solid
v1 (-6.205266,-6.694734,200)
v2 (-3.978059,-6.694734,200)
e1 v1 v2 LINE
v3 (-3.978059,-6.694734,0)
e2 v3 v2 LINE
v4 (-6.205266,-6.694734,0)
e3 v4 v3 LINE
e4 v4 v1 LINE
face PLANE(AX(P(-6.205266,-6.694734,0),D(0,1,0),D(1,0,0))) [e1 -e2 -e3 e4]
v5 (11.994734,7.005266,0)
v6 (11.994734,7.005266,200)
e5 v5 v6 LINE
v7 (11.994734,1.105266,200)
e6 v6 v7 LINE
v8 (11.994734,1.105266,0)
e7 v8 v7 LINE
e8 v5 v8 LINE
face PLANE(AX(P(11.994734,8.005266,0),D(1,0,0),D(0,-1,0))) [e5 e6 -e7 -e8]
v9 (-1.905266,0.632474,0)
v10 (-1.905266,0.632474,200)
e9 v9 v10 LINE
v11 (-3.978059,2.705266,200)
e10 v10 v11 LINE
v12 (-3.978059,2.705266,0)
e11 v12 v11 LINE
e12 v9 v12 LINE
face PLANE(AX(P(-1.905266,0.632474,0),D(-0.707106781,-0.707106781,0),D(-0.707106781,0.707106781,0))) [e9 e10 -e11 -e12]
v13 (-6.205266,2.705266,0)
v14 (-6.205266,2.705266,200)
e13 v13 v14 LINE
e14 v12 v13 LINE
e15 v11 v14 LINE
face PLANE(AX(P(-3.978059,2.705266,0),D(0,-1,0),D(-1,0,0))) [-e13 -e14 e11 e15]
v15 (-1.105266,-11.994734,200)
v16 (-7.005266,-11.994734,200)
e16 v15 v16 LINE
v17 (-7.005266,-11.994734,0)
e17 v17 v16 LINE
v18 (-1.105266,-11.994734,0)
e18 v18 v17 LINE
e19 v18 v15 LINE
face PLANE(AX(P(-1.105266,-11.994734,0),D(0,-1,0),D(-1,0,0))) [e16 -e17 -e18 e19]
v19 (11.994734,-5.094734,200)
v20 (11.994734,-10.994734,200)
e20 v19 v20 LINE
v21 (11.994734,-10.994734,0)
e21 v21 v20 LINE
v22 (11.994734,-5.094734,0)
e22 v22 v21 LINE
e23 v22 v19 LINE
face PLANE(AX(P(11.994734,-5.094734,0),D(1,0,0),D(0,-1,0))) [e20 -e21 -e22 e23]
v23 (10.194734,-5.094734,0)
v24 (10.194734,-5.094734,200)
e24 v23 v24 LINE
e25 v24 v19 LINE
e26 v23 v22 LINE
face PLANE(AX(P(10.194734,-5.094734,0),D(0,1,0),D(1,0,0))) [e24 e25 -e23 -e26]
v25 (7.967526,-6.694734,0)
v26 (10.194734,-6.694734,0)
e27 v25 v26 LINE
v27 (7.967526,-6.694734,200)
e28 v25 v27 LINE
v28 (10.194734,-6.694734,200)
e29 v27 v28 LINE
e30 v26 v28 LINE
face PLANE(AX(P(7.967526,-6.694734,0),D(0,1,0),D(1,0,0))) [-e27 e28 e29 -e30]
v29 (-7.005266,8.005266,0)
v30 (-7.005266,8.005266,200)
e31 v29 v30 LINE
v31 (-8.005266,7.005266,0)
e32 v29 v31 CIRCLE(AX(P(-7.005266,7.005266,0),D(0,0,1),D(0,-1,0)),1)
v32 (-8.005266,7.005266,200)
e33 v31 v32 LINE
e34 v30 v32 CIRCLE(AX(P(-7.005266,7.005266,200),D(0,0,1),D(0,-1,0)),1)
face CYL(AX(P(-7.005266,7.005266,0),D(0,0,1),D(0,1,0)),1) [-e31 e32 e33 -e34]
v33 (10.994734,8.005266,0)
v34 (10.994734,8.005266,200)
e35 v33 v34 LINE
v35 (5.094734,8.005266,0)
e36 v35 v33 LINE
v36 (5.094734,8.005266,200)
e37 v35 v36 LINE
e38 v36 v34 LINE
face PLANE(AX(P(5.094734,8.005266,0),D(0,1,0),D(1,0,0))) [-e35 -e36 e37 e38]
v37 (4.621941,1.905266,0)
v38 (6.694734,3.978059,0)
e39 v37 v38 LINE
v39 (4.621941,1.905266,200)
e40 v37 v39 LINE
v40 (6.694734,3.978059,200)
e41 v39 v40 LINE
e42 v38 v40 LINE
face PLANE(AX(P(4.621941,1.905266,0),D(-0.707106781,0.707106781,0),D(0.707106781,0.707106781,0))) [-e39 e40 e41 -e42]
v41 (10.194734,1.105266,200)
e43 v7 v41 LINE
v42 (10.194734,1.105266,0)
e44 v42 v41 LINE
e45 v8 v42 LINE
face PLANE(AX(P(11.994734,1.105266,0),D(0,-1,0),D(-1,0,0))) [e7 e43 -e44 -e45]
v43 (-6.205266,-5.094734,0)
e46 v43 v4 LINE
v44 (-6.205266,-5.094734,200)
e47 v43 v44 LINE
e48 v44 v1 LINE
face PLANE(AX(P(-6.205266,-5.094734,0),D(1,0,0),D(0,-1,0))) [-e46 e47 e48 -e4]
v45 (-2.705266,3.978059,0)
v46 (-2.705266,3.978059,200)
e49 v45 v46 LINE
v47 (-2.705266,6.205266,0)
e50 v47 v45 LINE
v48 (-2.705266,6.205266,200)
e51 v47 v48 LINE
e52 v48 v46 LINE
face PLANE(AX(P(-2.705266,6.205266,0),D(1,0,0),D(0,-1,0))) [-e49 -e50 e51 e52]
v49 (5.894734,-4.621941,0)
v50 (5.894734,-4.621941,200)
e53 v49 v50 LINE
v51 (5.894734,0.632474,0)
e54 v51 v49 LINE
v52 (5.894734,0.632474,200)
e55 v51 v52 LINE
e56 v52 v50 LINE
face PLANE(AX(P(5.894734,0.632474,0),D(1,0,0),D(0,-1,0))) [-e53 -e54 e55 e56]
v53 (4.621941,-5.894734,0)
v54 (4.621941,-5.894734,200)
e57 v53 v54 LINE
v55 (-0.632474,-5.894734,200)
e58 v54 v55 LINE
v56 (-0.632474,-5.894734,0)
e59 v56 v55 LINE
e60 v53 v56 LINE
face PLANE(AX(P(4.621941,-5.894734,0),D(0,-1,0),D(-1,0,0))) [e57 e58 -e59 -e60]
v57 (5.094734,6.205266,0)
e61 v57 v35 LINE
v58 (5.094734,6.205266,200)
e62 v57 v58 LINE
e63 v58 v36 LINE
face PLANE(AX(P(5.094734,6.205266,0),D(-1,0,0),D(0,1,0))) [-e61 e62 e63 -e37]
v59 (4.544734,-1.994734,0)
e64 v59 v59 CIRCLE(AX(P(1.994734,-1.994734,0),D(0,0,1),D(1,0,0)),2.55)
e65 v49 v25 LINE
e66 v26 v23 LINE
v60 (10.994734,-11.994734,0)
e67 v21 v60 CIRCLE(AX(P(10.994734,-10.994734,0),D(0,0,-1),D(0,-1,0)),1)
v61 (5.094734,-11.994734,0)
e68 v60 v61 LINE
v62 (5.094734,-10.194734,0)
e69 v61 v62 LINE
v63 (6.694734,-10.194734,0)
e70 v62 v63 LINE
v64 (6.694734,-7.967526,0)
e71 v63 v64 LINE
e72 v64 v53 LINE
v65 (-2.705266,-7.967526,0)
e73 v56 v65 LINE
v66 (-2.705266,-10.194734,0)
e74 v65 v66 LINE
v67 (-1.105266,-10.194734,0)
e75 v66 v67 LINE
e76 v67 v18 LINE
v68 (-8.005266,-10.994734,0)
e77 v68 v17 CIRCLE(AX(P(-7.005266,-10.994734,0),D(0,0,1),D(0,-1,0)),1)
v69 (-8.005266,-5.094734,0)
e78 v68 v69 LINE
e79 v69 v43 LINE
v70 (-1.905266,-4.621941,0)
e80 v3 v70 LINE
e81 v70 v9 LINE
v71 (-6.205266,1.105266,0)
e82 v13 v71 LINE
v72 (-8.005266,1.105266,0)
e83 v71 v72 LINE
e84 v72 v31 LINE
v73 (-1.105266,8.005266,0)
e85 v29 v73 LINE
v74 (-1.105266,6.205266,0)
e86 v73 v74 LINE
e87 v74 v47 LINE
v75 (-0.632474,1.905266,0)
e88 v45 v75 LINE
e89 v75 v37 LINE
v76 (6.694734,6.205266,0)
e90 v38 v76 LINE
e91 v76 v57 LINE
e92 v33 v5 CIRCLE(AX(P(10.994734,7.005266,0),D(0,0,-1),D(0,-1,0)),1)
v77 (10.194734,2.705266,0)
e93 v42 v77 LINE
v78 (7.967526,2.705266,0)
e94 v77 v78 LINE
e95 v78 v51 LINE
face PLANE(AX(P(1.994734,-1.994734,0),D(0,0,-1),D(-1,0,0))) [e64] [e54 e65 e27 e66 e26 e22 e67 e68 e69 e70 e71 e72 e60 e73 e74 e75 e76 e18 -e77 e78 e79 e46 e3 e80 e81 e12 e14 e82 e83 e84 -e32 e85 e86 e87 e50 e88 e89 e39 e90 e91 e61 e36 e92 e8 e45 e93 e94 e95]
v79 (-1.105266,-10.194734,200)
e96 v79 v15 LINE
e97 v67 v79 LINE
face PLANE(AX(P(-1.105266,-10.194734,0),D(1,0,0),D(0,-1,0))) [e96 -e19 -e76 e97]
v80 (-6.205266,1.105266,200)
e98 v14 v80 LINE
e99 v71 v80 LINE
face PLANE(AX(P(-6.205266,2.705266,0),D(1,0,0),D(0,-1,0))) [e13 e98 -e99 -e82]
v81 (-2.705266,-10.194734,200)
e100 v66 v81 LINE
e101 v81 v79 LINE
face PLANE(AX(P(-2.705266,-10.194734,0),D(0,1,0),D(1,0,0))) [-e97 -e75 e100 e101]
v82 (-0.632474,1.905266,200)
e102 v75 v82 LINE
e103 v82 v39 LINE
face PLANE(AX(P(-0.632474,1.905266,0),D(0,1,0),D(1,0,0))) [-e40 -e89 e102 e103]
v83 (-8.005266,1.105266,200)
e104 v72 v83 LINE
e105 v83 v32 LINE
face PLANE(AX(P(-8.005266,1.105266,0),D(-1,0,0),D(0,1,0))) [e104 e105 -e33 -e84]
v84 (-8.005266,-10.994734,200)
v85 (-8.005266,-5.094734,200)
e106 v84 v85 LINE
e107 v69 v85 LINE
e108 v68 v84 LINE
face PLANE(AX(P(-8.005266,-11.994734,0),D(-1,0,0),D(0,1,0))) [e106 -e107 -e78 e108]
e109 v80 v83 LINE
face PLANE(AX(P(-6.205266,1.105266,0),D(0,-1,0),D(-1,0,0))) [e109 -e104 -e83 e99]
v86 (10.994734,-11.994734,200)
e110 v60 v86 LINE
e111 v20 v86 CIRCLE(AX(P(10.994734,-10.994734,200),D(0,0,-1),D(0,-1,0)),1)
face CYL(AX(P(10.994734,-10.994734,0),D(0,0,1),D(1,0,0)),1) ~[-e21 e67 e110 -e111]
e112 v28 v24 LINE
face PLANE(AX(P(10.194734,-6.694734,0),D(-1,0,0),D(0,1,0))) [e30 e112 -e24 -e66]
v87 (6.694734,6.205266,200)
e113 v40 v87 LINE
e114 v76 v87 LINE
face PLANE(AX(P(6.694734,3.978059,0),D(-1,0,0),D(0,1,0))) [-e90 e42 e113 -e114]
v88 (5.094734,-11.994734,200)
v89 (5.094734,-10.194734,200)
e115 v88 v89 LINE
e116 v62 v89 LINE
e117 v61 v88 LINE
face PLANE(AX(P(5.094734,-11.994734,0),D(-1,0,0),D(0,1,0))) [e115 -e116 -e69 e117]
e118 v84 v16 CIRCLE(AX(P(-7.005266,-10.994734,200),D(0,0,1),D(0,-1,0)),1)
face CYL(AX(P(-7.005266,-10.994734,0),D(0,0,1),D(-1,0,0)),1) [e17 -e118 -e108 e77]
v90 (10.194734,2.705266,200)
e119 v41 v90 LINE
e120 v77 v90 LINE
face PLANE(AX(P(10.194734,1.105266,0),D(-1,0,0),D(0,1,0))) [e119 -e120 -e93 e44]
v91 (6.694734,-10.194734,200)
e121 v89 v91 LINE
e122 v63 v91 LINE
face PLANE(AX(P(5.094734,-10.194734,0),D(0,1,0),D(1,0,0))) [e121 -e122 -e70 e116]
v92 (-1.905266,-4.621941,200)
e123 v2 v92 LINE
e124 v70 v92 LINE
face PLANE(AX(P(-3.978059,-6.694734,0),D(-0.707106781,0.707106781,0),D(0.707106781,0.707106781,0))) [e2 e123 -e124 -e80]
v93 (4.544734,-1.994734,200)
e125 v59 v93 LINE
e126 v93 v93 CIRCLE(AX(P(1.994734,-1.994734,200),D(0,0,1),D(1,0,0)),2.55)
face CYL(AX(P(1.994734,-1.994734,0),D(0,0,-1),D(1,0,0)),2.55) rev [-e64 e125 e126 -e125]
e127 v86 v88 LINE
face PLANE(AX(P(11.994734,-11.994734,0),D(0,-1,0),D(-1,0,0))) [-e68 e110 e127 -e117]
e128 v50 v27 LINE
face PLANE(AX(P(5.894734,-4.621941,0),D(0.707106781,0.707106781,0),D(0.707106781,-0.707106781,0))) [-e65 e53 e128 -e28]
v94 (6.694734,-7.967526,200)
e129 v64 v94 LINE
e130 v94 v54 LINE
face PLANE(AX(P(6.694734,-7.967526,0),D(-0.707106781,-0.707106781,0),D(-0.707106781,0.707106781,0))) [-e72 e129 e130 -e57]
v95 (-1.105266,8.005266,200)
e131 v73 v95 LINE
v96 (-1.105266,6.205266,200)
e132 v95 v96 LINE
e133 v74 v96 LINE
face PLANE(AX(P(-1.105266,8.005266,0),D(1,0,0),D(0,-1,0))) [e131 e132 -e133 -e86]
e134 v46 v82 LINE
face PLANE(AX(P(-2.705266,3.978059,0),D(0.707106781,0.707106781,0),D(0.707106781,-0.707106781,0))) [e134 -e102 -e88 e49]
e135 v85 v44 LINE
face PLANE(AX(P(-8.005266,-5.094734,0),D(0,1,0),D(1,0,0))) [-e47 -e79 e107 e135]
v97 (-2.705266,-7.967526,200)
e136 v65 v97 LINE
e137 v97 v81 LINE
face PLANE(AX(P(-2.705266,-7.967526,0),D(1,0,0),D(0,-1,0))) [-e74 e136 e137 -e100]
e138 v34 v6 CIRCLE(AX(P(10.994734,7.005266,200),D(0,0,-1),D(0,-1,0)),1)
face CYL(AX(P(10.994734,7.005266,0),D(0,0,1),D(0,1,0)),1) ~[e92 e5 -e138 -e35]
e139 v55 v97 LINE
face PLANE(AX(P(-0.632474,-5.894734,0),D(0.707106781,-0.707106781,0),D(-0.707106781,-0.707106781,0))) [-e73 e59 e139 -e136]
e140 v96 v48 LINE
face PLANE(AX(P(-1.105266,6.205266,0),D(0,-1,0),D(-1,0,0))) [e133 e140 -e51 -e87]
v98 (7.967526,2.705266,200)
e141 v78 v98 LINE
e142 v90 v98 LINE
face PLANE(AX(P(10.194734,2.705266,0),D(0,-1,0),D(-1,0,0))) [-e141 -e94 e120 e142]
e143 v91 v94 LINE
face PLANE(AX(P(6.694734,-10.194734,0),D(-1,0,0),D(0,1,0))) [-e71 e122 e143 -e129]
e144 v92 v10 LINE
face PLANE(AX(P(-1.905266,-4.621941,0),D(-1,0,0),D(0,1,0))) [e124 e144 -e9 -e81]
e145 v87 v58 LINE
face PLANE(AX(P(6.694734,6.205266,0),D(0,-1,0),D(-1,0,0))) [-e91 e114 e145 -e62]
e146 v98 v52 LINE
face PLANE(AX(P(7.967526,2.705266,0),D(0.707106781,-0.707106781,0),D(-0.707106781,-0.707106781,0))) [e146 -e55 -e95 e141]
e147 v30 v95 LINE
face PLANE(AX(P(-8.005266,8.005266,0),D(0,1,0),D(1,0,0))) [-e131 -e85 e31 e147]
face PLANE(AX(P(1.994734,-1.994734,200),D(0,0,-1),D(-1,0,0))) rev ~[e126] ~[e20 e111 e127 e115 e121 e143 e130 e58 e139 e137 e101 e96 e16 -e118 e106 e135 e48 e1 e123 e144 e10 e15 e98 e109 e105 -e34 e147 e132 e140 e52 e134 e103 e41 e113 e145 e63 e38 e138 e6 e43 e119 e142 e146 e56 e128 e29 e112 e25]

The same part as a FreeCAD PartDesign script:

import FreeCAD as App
import Part
import Sketcher

V = App.Vector
Q = App.Units.Quantity


def edges_at(feature, points):
    """Names of the edges that pass closest to the given points."""
    edges = feature.Shape.Edges
    near = lambda p: min(range(len(edges)), key=lambda i: edges[i].distToShape(Part.Vertex(*p))[0])
    return sorted({f"Edge{near(p) + 1}" for p in points})

doc = App.newDocument("Part")
body = doc.addObject("PartDesign::Body", "Body")

sketch1 = body.newObject("Sketcher::SketchObject", "Sketch")
sketch1.AttachmentSupport = (doc.getObject("XY_Plane"), [""])
sketch1.MapMode = "FlatFace"
sketch1.addGeometry([
    Part.LineSegment(V(6.694734, 3.978059, 0), V(4.621941, 1.905266, 0)),
    Part.LineSegment(V(4.621941, 1.905266, 0), V(-0.632474, 1.905266, 0)),
    Part.LineSegment(V(-0.632474, 1.905266, 0), V(-2.705266, 3.978059, 0)),
    Part.LineSegment(V(-2.705266, 3.978059, 0), V(-2.705266, 6.205266, 0)),
    Part.LineSegment(V(-2.705266, 6.205266, 0), V(-1.105266, 6.205266, 0)),
    Part.LineSegment(V(-1.105266, 6.205266, 0), V(-1.105266, 8.005266, 0)),
    Part.LineSegment(V(-1.105266, 8.005266, 0), V(-8.005266, 8.005266, 0)),
    Part.LineSegment(V(-8.005266, 8.005266, 0), V(-8.005266, 1.105266, 0)),
    Part.LineSegment(V(-8.005266, 1.105266, 0), V(-6.205266, 1.105266, 0)),
    Part.LineSegment(V(-6.205266, 1.105266, 0), V(-6.205266, 2.705266, 0)),
    Part.LineSegment(V(-6.205266, 2.705266, 0), V(-3.978059, 2.705266, 0)),
    Part.LineSegment(V(-3.978059, 2.705266, 0), V(-1.905266, 0.632474, 0)),
    Part.LineSegment(V(-1.905266, 0.632474, 0), V(-1.905266, -4.621941, 0)),
    Part.LineSegment(V(-1.905266, -4.621941, 0), V(-3.978059, -6.694734, 0)),
    Part.LineSegment(V(-3.978059, -6.694734, 0), V(-6.205266, -6.694734, 0)),
    Part.LineSegment(V(-6.205266, -6.694734, 0), V(-6.205266, -5.094734, 0)),
    Part.LineSegment(V(-6.205266, -5.094734, 0), V(-8.005266, -5.094734, 0)),
    Part.LineSegment(V(-8.005266, -5.094734, 0), V(-8.005266, -11.994734, 0)),
    Part.LineSegment(V(-8.005266, -11.994734, 0), V(-1.105266, -11.994734, 0)),
    Part.LineSegment(V(-1.105266, -11.994734, 0), V(-1.105266, -10.194734, 0)),
    Part.LineSegment(V(-1.105266, -10.194734, 0), V(-2.705266, -10.194734, 0)),
    Part.LineSegment(V(-2.705266, -10.194734, 0), V(-2.705266, -7.967526, 0)),
    Part.LineSegment(V(-2.705266, -7.967526, 0), V(-0.632474, -5.894734, 0)),
    Part.LineSegment(V(-0.632474, -5.894734, 0), V(4.621941, -5.894734, 0)),
    Part.LineSegment(V(4.621941, -5.894734, 0), V(6.694734, -7.967526, 0)),
    Part.LineSegment(V(6.694734, -7.967526, 0), V(6.694734, -10.194734, 0)),
    Part.LineSegment(V(6.694734, -10.194734, 0), V(5.094734, -10.194734, 0)),
    Part.LineSegment(V(5.094734, -10.194734, 0), V(5.094734, -11.994734, 0)),
    Part.LineSegment(V(5.094734, -11.994734, 0), V(11.994734, -11.994734, 0)),
    Part.LineSegment(V(11.994734, -11.994734, 0), V(11.994734, -5.094734, 0)),
    Part.LineSegment(V(11.994734, -5.094734, 0), V(10.194734, -5.094734, 0)),
    Part.LineSegment(V(10.194734, -5.094734, 0), V(10.194734, -6.694734, 0)),
    Part.LineSegment(V(10.194734, -6.694734, 0), V(7.967526, -6.694734, 0)),
    Part.LineSegment(V(7.967526, -6.694734, 0), V(5.894734, -4.621941, 0)),
    Part.LineSegment(V(5.894734, -4.621941, 0), V(5.894734, 0.632474, 0)),
    Part.LineSegment(V(5.894734, 0.632474, 0), V(7.967526, 2.705266, 0)),
    Part.LineSegment(V(7.967526, 2.705266, 0), V(10.194734, 2.705266, 0)),
    Part.LineSegment(V(10.194734, 2.705266, 0), V(10.194734, 1.105266, 0)),
    Part.LineSegment(V(10.194734, 1.105266, 0), V(11.994734, 1.105266, 0)),
    Part.LineSegment(V(11.994734, 1.105266, 0), V(11.994734, 8.005266, 0)),
    Part.LineSegment(V(11.994734, 8.005266, 0), V(5.094734, 8.005266, 0)),
    Part.LineSegment(V(5.094734, 8.005266, 0), V(5.094734, 6.205266, 0)),
    Part.LineSegment(V(5.094734, 6.205266, 0), V(6.694734, 6.205266, 0)),
    Part.LineSegment(V(6.694734, 6.205266, 0), V(6.694734, 3.978059, 0)),
    Part.Circle(V(1.994734, -1.994734, 0), V(0, 0, 1), 2.55),
], False)
sketch1.addConstraint([
    Sketcher.Constraint("Coincident", 0, 2, 1, 1),
    Sketcher.Constraint("Coincident", 1, 2, 2, 1),
    Sketcher.Constraint("Coincident", 2, 2, 3, 1),
    Sketcher.Constraint("Coincident", 3, 2, 4, 1),
    Sketcher.Constraint("Coincident", 4, 2, 5, 1),
    Sketcher.Constraint("Coincident", 5, 2, 6, 1),
    Sketcher.Constraint("Coincident", 6, 2, 7, 1),
    Sketcher.Constraint("Coincident", 7, 2, 8, 1),
    Sketcher.Constraint("Coincident", 8, 2, 9, 1),
    Sketcher.Constraint("Coincident", 9, 2, 10, 1),
    Sketcher.Constraint("Coincident", 10, 2, 11, 1),
    Sketcher.Constraint("Coincident", 11, 2, 12, 1),
    Sketcher.Constraint("Coincident", 12, 2, 13, 1),
    Sketcher.Constraint("Coincident", 13, 2, 14, 1),
    Sketcher.Constraint("Coincident", 14, 2, 15, 1),
    Sketcher.Constraint("Coincident", 15, 2, 16, 1),
    Sketcher.Constraint("Coincident", 16, 2, 17, 1),
    Sketcher.Constraint("Coincident", 17, 2, 18, 1),
    Sketcher.Constraint("Coincident", 18, 2, 19, 1),
    Sketcher.Constraint("Coincident", 19, 2, 20, 1),
    Sketcher.Constraint("Coincident", 20, 2, 21, 1),
    Sketcher.Constraint("Coincident", 21, 2, 22, 1),
    Sketcher.Constraint("Coincident", 22, 2, 23, 1),
    Sketcher.Constraint("Coincident", 23, 2, 24, 1),
    Sketcher.Constraint("Coincident", 24, 2, 25, 1),
    Sketcher.Constraint("Coincident", 25, 2, 26, 1),
    Sketcher.Constraint("Coincident", 26, 2, 27, 1),
    Sketcher.Constraint("Coincident", 27, 2, 28, 1),
    Sketcher.Constraint("Coincident", 28, 2, 29, 1),
    Sketcher.Constraint("Coincident", 29, 2, 30, 1),
    Sketcher.Constraint("Coincident", 30, 2, 31, 1),
    Sketcher.Constraint("Coincident", 31, 2, 32, 1),
    Sketcher.Constraint("Coincident", 32, 2, 33, 1),
    Sketcher.Constraint("Coincident", 33, 2, 34, 1),
    Sketcher.Constraint("Coincident", 34, 2, 35, 1),
    Sketcher.Constraint("Coincident", 35, 2, 36, 1),
    Sketcher.Constraint("Coincident", 36, 2, 37, 1),
    Sketcher.Constraint("Coincident", 37, 2, 38, 1),
    Sketcher.Constraint("Coincident", 38, 2, 39, 1),
    Sketcher.Constraint("Coincident", 39, 2, 40, 1),
    Sketcher.Constraint("Coincident", 40, 2, 41, 1),
    Sketcher.Constraint("Coincident", 41, 2, 42, 1),
    Sketcher.Constraint("Coincident", 42, 2, 43, 1),
    Sketcher.Constraint("Coincident", 43, 2, 0, 1),
    Sketcher.Constraint("Horizontal", 1),
    Sketcher.Constraint("Vertical", 3),
    Sketcher.Constraint("Horizontal", 4),
    Sketcher.Constraint("Vertical", 5),
    Sketcher.Constraint("Horizontal", 6),
    Sketcher.Constraint("Vertical", 7),
    Sketcher.Constraint("Horizontal", 8),
    Sketcher.Constraint("Vertical", 9),
    Sketcher.Constraint("Horizontal", 10),
    Sketcher.Constraint("Vertical", 12),
    Sketcher.Constraint("Horizontal", 14),
    Sketcher.Constraint("Vertical", 15),
    Sketcher.Constraint("Horizontal", 16),
    Sketcher.Constraint("Vertical", 17),
    Sketcher.Constraint("Horizontal", 18),
    Sketcher.Constraint("Vertical", 19),
    Sketcher.Constraint("Horizontal", 20),
    Sketcher.Constraint("Vertical", 21),
    Sketcher.Constraint("Horizontal", 23),
    Sketcher.Constraint("Vertical", 25),
    Sketcher.Constraint("Horizontal", 26),
    Sketcher.Constraint("Vertical", 27),
    Sketcher.Constraint("Horizontal", 28),
    Sketcher.Constraint("Vertical", 29),
    Sketcher.Constraint("Horizontal", 30),
    Sketcher.Constraint("Vertical", 31),
    Sketcher.Constraint("Horizontal", 32),
    Sketcher.Constraint("Vertical", 34),
    Sketcher.Constraint("Horizontal", 36),
    Sketcher.Constraint("Vertical", 37),
    Sketcher.Constraint("Horizontal", 38),
    Sketcher.Constraint("Vertical", 39),
    Sketcher.Constraint("Horizontal", 40),
    Sketcher.Constraint("Vertical", 41),
    Sketcher.Constraint("Horizontal", 42),
    Sketcher.Constraint("Vertical", 43),
    Sketcher.Constraint("Perpendicular", 0, 2),
    Sketcher.Constraint("Parallel", 2, 11),
    Sketcher.Constraint("Perpendicular", 11, 13),
    Sketcher.Constraint("Parallel", 13, 22),
    Sketcher.Constraint("Perpendicular", 22, 24),
    Sketcher.Constraint("Parallel", 24, 33),
    Sketcher.Constraint("Perpendicular", 33, 35),
    Sketcher.Constraint("Horizontal", 21, 2, 24, 2),
    Sketcher.Constraint("Horizontal", 20, 2, 25, 2),
    Sketcher.Constraint("Horizontal", 18, 2, 27, 2),
    Sketcher.Constraint("Horizontal", 16, 2, 29, 2),
    Sketcher.Constraint("Horizontal", 14, 2, 31, 2),
    Sketcher.Constraint("Horizontal", 12, 2, 33, 2),
    Sketcher.Constraint("Horizontal", 11, 2, 34, 2),
    Sketcher.Constraint("Horizontal", 10, 2, 35, 2),
    Sketcher.Constraint("Horizontal", 8, 2, 37, 2),
    Sketcher.Constraint("Horizontal", 6, 2, 39, 2),
    Sketcher.Constraint("Horizontal", 4, 2, 41, 2),
    Sketcher.Constraint("Horizontal", 2, 2, 43, 2),
    Sketcher.Constraint("Vertical", 10, 2, 13, 2),
    Sketcher.Constraint("Vertical", 9, 2, 14, 2),
    Sketcher.Constraint("Vertical", 7, 2, 16, 2),
    Sketcher.Constraint("Vertical", 5, 2, 18, 2),
    Sketcher.Constraint("Vertical", 3, 2, 20, 2),
    Sketcher.Constraint("Vertical", 1, 2, 22, 2),
    Sketcher.Constraint("Vertical", 0, 2, 23, 2),
    Sketcher.Constraint("Vertical", 32, 2, 35, 2),
    Sketcher.Constraint("Vertical", 31, 2, 36, 2),
    Sketcher.Constraint("Vertical", 29, 2, 38, 2),
    Sketcher.Constraint("Vertical", 27, 2, 40, 2),
    Sketcher.Constraint("Equal", 20, 26),
    Sketcher.Constraint("Equal", 18, 28),
    Sketcher.Constraint("Equal", 16, 30),
    Sketcher.Constraint("Equal", 14, 32),
    Sketcher.Constraint("Equal", 36, 3),
    Sketcher.Constraint("Equal", 38, 5),
    Sketcher.Constraint("Equal", 40, 7),
    Sketcher.Constraint("Equal", 42, 9),
    Sketcher.Constraint("Equal", 23, 12),
    Sketcher.Constraint("Equal", 9, 15),
    Sketcher.Constraint("Equal", 7, 17),
    Sketcher.Constraint("Equal", 5, 19),
    Sketcher.Constraint("Equal", 3, 21),
    Sketcher.Constraint("Equal", 2, 11),
    Sketcher.Constraint("Diameter", 44, Q("5.1 mm")),
    Sketcher.Constraint("DistanceX", 4, 1, 4, 2, Q("1.6 mm")),
    Sketcher.Constraint("DistanceX", 6, 2, 6, 1, Q("6.9 mm")),
    Sketcher.Constraint("DistanceX", 8, 1, 8, 2, Q("1.8 mm")),
    Sketcher.Constraint("DistanceY", 44, 3, 0, 2, Q("3.9 mm")),
    Sketcher.Constraint("DistanceX", 2, 2, 44, 3, Q("4.7 mm")),
    Sketcher.Constraint("DistanceY", 1, 2, 3, 2, Q("4.3 mm")),
    Sketcher.Constraint("DistanceY", 13, 2, 44, 3, Q("4.7 mm")),
    Sketcher.Constraint("Distance", 0, Q("2.931371 mm")),
    Sketcher.Constraint("DistanceX", -1, 1, 0, 2, Q("4.621941 mm")),
    Sketcher.Constraint("DistanceY", -1, 1, 2, 2, Q("3.978059 mm")),
])
pad1 = body.newObject("PartDesign::Pad", "Pad")
pad1.Profile = sketch1
pad1.Length = 200
doc.recompute()

fillet = body.newObject("PartDesign::Fillet", "Fillet")
fillet.Base = (pad1, edges_at(pad1, [
    (-8.005, -11.995, 100),
    (-8.005, 8.005, 100),
    (11.995, 8.005, 100),
    (11.995, -11.995, 100),
]))
fillet.Radius = 1

doc.recompute()
